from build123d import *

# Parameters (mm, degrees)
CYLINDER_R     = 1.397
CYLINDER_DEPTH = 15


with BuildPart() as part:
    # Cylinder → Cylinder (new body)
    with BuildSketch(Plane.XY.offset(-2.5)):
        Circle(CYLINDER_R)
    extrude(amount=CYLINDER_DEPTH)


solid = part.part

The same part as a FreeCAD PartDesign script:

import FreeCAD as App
import Part
import Sketcher
from FreeCAD import Vector
Q = App.Units.Quantity

doc = App.newDocument("Part")
body = doc.addObject("PartDesign::Body", "Body")

sketch1 = doc.addObject("Sketcher::SketchObject", "Sketch")
body.addObject(sketch1)
sketch1.AttachmentSupport = (doc.XY_Plane, [""])
sketch1.MapMode = "FlatFace"
sketch1.AttachmentOffset = App.Placement(Vector(0, 0, -2.5), App.Rotation())
sketch1.addGeometry(Part.Circle(Vector(0, 0, 0), Vector(0, 0, 1), 1.4), False)
sketch1.addConstraint([
    Sketcher.Constraint("Coincident", 0, 3, -1, 1),
    Sketcher.Constraint("Diameter", 0, Q("2.794 mm")),
])
pad1 = doc.addObject("PartDesign::Pad", "Pad")
body.addObject(pad1)
pad1.Profile = sketch1
pad1.Length = 15

doc.recompute()
